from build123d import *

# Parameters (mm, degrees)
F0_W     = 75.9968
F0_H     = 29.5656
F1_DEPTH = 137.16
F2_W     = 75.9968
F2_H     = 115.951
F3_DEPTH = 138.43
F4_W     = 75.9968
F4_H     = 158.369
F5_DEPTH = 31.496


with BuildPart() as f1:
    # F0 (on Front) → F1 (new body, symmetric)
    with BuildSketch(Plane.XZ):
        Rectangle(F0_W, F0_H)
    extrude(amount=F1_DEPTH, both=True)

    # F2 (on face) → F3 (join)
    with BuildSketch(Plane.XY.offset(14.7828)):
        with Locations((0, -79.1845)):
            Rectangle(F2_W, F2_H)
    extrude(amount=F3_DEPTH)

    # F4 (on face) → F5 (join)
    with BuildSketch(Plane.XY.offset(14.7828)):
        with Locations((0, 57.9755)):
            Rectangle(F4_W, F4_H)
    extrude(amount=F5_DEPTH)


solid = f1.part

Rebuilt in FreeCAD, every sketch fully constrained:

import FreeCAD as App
import Part
import Sketcher
Q = App.Units.Quantity

doc = App.newDocument("Part")
body = doc.addObject("PartDesign::Body", "Body")

sketch1 = body.newObject("Sketcher::SketchObject", "Sketch")
sketch1.AttachmentSupport = (doc.getObject("XZ_Plane"), [""])
sketch1.MapMode = "FlatFace"
sketch1.addGeometry([
    Part.LineSegment(App.Vector(-38, 15, 0), App.Vector(-38, -15, 0)),
    Part.LineSegment(App.Vector(-38, -15, 0), App.Vector(38, -15, 0)),
    Part.LineSegment(App.Vector(38, -15, 0), App.Vector(38, 15, 0)),
    Part.LineSegment(App.Vector(38, 15, 0), App.Vector(-38, 15, 0)),
], False)
sketch1.addConstraint([
    Sketcher.Constraint("Coincident", 0, 2, 1, 1),
    Sketcher.Constraint("Coincident", 1, 2, 2, 1),
    Sketcher.Constraint("Coincident", 2, 2, 3, 1),
    Sketcher.Constraint("Coincident", 3, 2, 0, 1),
    Sketcher.Constraint("Vertical", 0),
    Sketcher.Constraint("Horizontal", 1),
    Sketcher.Constraint("Vertical", 2),
    Sketcher.Constraint("Horizontal", 3),
    Sketcher.Constraint("Symmetric", 0, 2, 2, 2, -1, 1),
    Sketcher.Constraint("DistanceX", 1, 1, 1, 2, Q("2.992 in")),
    Sketcher.Constraint("DistanceY", 0, 2, 0, 1, Q("1.164 in")),
])
pad1 = body.newObject("PartDesign::Pad", "Pad")
pad1.Profile = sketch1
pad1.Length = Q("10.8 in")
pad1.Midplane = True

sketch2 = body.newObject("Sketcher::SketchObject", "Sketch001")
sketch2.AttachmentSupport = (doc.getObject("XY_Plane"), [""])
sketch2.MapMode = "FlatFace"
sketch2.AttachmentOffset = App.Placement(App.Vector(0, 0, 0.582 * 25.4), App.Rotation())
sketch2.addGeometry([
    Part.LineSegment(App.Vector(-38, -21, 0), App.Vector(-38, -137, 0)),
    Part.LineSegment(App.Vector(-38, -137, 0), App.Vector(38, -137, 0)),
    Part.LineSegment(App.Vector(38, -137, 0), App.Vector(38, -21, 0)),
    Part.LineSegment(App.Vector(38, -21, 0), App.Vector(-38, -21, 0)),
], False)
sketch2.addConstraint([
    Sketcher.Constraint("Coincident", 0, 2, 1, 1),
    Sketcher.Constraint("Coincident", 1, 2, 2, 1),
    Sketcher.Constraint("Coincident", 2, 2, 3, 1),
    Sketcher.Constraint("Coincident", 3, 2, 0, 1),
    Sketcher.Constraint("Vertical", 0),
    Sketcher.Constraint("Horizontal", 1),
    Sketcher.Constraint("Vertical", 2),
    Sketcher.Constraint("Horizontal", 3),
    Sketcher.Constraint("DistanceY", 0, 2, -1, 1, Q("5.4 in")),
    Sketcher.Constraint("DistanceX", 1, 1, 1, 2, Q("2.992 in")),
    Sketcher.Constraint("DistanceY", 0, 2, 0, 1, Q("4.565 in")),
    Sketcher.Constraint("DistanceX", 0, 2, -1, 1, Q("1.496 in")),
])
pad2 = body.newObject("PartDesign::Pad", "Pad001")
pad2.Profile = sketch2
pad2.Length = Q("5.45 in")

sketch3 = body.newObject("Sketcher::SketchObject", "Sketch002")
sketch3.AttachmentSupport = (doc.getObject("XY_Plane"), [""])
sketch3.MapMode = "FlatFace"
sketch3.AttachmentOffset = App.Placement(App.Vector(0, 0, 0.582 * 25.4), App.Rotation())
sketch3.addGeometry([
    Part.LineSegment(App.Vector(-38, 137, 0), App.Vector(-38, -21, 0)),
    Part.LineSegment(App.Vector(-38, -21, 0), App.Vector(38, -21, 0)),
    Part.LineSegment(App.Vector(38, -21, 0), App.Vector(38, 137, 0)),
    Part.LineSegment(App.Vector(38, 137, 0), App.Vector(-38, 137, 0)),
], False)
sketch3.addConstraint([
    Sketcher.Constraint("Coincident", 0, 2, 1, 1),
    Sketcher.Constraint("Coincident", 1, 2, 2, 1),
    Sketcher.Constraint("Coincident", 2, 2, 3, 1),
    Sketcher.Constraint("Coincident", 3, 2, 0, 1),
    Sketcher.Constraint("Vertical", 0),
    Sketcher.Constraint("Horizontal", 1),
    Sketcher.Constraint("Vertical", 2),
    Sketcher.Constraint("Horizontal", 3),
    Sketcher.Constraint("DistanceY", -1, 1, 2, 2, Q("5.4 in")),
    Sketcher.Constraint("DistanceX", 1, 1, 1, 2, Q("2.992 in")),
    Sketcher.Constraint("DistanceY", 0, 2, 0, 1, Q("6.235 in")),
    Sketcher.Constraint("DistanceX", 0, 2, -1, 1, Q("1.496 in")),
])
pad3 = body.newObject("PartDesign::Pad", "Pad002")
pad3.Profile = sketch3
pad3.Length = Q("1.24 in")

doc.recompute()
